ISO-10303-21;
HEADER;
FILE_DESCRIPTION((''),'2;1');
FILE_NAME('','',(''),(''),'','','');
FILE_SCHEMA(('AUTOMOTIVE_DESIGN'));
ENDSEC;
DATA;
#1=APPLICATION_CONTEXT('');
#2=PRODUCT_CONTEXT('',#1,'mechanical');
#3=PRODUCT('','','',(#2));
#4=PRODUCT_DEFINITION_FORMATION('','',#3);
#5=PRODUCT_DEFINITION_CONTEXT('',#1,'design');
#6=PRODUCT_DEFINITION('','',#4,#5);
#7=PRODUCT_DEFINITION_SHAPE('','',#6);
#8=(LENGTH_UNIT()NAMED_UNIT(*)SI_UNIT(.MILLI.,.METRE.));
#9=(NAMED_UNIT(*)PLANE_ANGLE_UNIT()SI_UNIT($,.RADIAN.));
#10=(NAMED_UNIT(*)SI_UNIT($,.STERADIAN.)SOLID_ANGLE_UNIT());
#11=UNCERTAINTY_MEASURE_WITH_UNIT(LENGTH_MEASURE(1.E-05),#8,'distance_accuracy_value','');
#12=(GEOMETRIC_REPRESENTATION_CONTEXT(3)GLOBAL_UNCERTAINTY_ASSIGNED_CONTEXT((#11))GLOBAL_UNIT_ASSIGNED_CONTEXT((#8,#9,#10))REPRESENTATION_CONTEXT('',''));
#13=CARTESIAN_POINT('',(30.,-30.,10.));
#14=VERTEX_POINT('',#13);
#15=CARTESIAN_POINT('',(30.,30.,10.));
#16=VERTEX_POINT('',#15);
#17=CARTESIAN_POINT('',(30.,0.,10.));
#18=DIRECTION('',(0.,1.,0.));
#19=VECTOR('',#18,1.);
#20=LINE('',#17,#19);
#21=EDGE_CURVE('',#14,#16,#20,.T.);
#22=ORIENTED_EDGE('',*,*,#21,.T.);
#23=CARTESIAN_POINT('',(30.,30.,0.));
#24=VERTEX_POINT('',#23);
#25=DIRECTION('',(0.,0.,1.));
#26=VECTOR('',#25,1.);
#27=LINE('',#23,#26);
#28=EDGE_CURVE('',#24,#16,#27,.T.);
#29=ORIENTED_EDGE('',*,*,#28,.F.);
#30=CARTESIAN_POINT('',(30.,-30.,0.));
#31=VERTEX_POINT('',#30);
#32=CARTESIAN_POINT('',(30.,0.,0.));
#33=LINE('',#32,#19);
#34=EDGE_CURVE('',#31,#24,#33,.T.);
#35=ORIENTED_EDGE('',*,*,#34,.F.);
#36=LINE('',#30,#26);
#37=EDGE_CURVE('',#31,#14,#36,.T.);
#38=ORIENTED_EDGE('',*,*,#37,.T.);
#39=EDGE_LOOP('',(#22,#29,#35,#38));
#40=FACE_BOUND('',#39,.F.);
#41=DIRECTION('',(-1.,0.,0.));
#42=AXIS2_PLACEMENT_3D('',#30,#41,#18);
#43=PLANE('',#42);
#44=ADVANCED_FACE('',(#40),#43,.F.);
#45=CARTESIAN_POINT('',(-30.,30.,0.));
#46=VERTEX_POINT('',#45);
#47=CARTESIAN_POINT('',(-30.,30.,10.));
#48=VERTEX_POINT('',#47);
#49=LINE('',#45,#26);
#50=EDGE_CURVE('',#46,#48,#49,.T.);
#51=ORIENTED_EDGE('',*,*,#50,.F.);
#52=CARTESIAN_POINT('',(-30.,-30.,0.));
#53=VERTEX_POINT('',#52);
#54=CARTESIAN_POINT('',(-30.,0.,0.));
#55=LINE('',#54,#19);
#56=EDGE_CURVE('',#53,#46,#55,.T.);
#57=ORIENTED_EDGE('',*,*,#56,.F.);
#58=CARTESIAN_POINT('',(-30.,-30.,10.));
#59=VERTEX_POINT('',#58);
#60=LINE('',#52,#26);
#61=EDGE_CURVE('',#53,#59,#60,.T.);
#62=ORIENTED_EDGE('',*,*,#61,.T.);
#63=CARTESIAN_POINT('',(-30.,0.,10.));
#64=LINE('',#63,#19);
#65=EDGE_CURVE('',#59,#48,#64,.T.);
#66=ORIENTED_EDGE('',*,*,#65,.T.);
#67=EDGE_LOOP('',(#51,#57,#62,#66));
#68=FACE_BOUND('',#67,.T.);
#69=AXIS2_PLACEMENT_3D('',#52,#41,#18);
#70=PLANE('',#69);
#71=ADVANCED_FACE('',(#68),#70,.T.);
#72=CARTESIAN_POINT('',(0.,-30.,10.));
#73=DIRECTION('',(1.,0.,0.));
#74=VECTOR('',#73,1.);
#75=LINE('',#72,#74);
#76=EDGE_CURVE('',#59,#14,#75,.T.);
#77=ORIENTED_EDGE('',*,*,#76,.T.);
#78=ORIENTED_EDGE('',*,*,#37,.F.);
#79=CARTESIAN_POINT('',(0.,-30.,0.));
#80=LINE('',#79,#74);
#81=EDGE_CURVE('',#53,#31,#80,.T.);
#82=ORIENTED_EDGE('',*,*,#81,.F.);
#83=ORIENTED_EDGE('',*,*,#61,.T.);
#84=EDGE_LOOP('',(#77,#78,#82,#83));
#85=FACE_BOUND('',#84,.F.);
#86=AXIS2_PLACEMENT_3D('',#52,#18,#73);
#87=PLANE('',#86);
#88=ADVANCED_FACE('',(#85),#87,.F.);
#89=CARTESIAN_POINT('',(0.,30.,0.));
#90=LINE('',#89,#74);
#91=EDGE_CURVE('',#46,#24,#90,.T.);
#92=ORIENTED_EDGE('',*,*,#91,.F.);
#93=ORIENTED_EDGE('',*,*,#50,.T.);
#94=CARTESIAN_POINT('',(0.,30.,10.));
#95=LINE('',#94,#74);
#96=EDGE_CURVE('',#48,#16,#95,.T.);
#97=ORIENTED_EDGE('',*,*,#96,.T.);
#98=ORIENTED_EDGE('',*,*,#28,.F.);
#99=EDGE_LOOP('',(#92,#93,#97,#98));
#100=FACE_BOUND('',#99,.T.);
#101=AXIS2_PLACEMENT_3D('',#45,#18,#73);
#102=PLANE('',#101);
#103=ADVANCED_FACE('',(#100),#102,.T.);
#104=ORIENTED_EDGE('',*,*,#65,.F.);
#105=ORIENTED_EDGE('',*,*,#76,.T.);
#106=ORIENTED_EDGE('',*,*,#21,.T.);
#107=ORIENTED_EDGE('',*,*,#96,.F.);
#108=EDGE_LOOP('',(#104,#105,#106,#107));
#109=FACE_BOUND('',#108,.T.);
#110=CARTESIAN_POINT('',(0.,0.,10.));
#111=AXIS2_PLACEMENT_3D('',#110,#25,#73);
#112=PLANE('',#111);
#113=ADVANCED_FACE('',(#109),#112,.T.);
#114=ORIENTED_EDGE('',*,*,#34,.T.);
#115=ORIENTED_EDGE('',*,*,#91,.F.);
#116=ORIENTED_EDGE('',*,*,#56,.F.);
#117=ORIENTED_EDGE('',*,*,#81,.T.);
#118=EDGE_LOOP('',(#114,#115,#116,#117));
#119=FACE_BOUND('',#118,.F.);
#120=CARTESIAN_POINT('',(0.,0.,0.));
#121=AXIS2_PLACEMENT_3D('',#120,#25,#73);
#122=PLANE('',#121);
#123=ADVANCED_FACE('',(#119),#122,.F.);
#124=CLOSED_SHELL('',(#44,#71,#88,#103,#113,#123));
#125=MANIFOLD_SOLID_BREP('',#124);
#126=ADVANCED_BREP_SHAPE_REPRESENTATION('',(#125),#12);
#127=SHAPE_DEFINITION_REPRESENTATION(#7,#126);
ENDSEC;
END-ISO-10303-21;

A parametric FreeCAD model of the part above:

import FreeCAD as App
import Part
import Sketcher
from FreeCAD import Vector
Q = App.Units.Quantity


def add_polygon(sketch, points):
    """Adds a closed chain of lines whose ends are joined by coincident constraints."""
    first, n = sketch.GeometryCount, len(points)
    for a, b in zip(points, points[1:] + points[:1]):
        sketch.addGeometry(Part.LineSegment(App.Vector(*a, 0), App.Vector(*b, 0)), False)
    for i in range(n):
        sketch.addConstraint(Sketcher.Constraint("Coincident", first + i, 2, first + (i + 1) % n, 1))

doc = App.newDocument("Part")
params = doc.addObject("Spreadsheet::Sheet", "Params")
for row, (alias, value) in enumerate([
    ("sketch1_width", "60 mm"),
    ("pad1_length", "10 mm"),
], start=1):
    params.set(f"A{row}", alias)
    params.set(f"B{row}", "=" + value)
    params.setAlias(f"B{row}", alias)

body = doc.addObject("PartDesign::Body", "Body")

sketch1 = body.newObject("Sketcher::SketchObject", "Sketch")
sketch1.AttachmentSupport = (doc.getObject("XY_Plane"), [""])
sketch1.MapMode = "FlatFace"
add_polygon(sketch1, [(-30, 30), (-30, -30), (30, -30), (30, 30)])
sketch1.addConstraint(Sketcher.Constraint("Vertical", 0))
sketch1.addConstraint(Sketcher.Constraint("Horizontal", 1))
sketch1.addConstraint(Sketcher.Constraint("Vertical", 2))
sketch1.addConstraint(Sketcher.Constraint("Horizontal", 3))
sketch1.addConstraint(Sketcher.Constraint("Symmetric", 0, 2, 2, 2, -1, 1))
sketch1.addConstraint(Sketcher.Constraint("Equal", 3, 0))
sketch1.addConstraint(Sketcher.Constraint("DistanceX", 1, 1, 1, 2, Q("60 mm")))
sketch1.setExpression("Constraints[10]", "Params.sketch1_width")
pad1 = body.newObject("PartDesign::Pad", "Pad")
pad1.Profile = sketch1
pad1.setExpression("Length", "Params.pad1_length")

doc.recompute()
